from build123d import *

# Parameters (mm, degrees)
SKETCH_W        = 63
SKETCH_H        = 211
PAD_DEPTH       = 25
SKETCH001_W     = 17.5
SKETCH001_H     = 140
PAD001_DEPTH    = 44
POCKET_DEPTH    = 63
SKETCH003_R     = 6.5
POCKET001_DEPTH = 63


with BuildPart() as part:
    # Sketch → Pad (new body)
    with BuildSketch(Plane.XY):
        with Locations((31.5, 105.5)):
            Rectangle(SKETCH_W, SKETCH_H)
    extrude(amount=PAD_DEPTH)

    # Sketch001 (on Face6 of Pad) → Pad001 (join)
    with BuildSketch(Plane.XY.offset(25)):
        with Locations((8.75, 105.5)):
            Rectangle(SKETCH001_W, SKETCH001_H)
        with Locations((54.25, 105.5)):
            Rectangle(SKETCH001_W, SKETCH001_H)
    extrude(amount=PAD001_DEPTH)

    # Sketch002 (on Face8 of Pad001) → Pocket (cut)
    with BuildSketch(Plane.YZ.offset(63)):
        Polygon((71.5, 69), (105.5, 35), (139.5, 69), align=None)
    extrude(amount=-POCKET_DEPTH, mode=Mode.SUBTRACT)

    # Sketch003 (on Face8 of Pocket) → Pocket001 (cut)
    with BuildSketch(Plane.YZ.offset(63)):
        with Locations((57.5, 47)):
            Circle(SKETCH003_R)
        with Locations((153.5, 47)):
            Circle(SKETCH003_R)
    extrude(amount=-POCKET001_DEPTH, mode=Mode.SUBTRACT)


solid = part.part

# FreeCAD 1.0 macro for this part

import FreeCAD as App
import Part
import Sketcher

V = App.Vector
Q = App.Units.Quantity


def add_polygon(sketch, points):
    """Adds a closed chain of lines whose ends are joined by coincident constraints."""
    first, n = sketch.GeometryCount, len(points)
    for a, b in zip(points, points[1:] + points[:1]):
        sketch.addGeometry(Part.LineSegment(App.Vector(*a, 0), App.Vector(*b, 0)), False)
    for i in range(n):
        sketch.addConstraint(Sketcher.Constraint("Coincident", first + i, 2, first + (i + 1) % n, 1))

doc = App.newDocument("Part")
body = doc.addObject("PartDesign::Body", "Body")

# Sketch on XY plane
sketch1 = body.newObject("Sketcher::SketchObject", "Sketch")
sketch1.AttachmentSupport = (doc.getObject("XY_Plane"), [""])
sketch1.MapMode = "FlatFace"
add_polygon(sketch1, [(0, 211), (0, 0), (63, 0), (63, 211)])  # lines 0-3
sketch1.addConstraint([
    Sketcher.Constraint("Vertical", 0),
    Sketcher.Constraint("Horizontal", 1),
    Sketcher.Constraint("Vertical", 2),
    Sketcher.Constraint("Horizontal", 3),
    Sketcher.Constraint("Coincident", 0, 2, -1, 1),
    Sketcher.Constraint("DistanceX", 1, 1, 1, 2, Q("63 mm")),
    Sketcher.Constraint("DistanceY", 0, 2, 0, 1, Q("211 mm")),
])
pad1 = body.newObject("PartDesign::Pad", "Pad")
pad1.Profile = sketch1
pad1.Length = 25

# Sketch on XY plane
sketch2 = body.newObject("Sketcher::SketchObject", "Sketch001")
sketch2.AttachmentSupport = (doc.getObject("XY_Plane"), [""])
sketch2.MapMode = "FlatFace"
sketch2.AttachmentOffset = App.Placement(V(0, 0, 25), App.Rotation())
add_polygon(sketch2, [(0, 175.5), (0, 35.5), (17.5, 35.5), (17.5, 175.5)])  # lines 0-3
add_polygon(sketch2, [(45.5, 175.5), (45.5, 35.5), (63, 35.5), (63, 175.5)])  # lines 4-7
sketch2.addConstraint([
    Sketcher.Constraint("Vertical", 0),
    Sketcher.Constraint("Horizontal", 1),
    Sketcher.Constraint("Vertical", 2),
    Sketcher.Constraint("Horizontal", 3),
    Sketcher.Constraint("Vertical", 4),
    Sketcher.Constraint("Horizontal", 5),
    Sketcher.Constraint("Vertical", 6),
    Sketcher.Constraint("Horizontal", 7),
    Sketcher.Constraint("PointOnObject", 0, 2, -2),
    Sketcher.Constraint("Horizontal", 1, 2, 4, 2),
    Sketcher.Constraint("Horizontal", 3, 2, 6, 2),
    Sketcher.Constraint("Equal", 3, 5),
    Sketcher.Constraint("DistanceY", 0, 2, 0, 1, Q("140 mm")),
    Sketcher.Constraint("DistanceX", 1, 1, 1, 2, Q("17.5 mm")),
    Sketcher.Constraint("DistanceX", -1, 1, 5, 2, Q("63 mm")),
    Sketcher.Constraint("DistanceY", -1, 1, 0, 2, Q("35.5 mm")),
])
pad2 = body.newObject("PartDesign::Pad", "Pad001")
pad2.Profile = sketch2
pad2.Length = 44

# Sketch on YZ plane
sketch3 = body.newObject("Sketcher::SketchObject", "Sketch002")
sketch3.AttachmentSupport = (doc.getObject("YZ_Plane"), [""])
sketch3.MapMode = "FlatFace"
sketch3.AttachmentOffset = App.Placement(V(0, 0, 63), App.Rotation())
add_polygon(sketch3, [(71.5, 69), (105.5, 35), (139.5, 69)])  # lines 0-2
sketch3.addConstraint([
    Sketcher.Constraint("Horizontal", 2),
    Sketcher.Constraint("Perpendicular", 0, 1),
    Sketcher.Constraint("Equal", 0, 1),
    Sketcher.Constraint("DistanceX", 2, 2, 2, 1, Q("68 mm")),
    Sketcher.Constraint("DistanceY", -1, 1, 0, 2, Q("35 mm")),
    Sketcher.Constraint("DistanceX", -1, 1, 0, 2, Q("105.5 mm")),
])
pocket1 = body.newObject("PartDesign::Pocket", "Pocket")
pocket1.Profile = sketch3
pocket1.Length = 63

# Sketch on YZ plane
sketch4 = body.newObject("Sketcher::SketchObject", "Sketch003")
sketch4.AttachmentSupport = (doc.getObject("YZ_Plane"), [""])
sketch4.MapMode = "FlatFace"
sketch4.AttachmentOffset = App.Placement(V(0, 0, 63), App.Rotation())
sketch4.addGeometry([
    Part.Circle(V(57.5, 47, 0), V(0, 0, 1), 6.5),
    Part.Circle(V(153.5, 47, 0), V(0, 0, 1), 6.5),
], False)
sketch4.addConstraint([
    Sketcher.Constraint("Equal", 0, 1),
    Sketcher.Constraint("Horizontal", 0, 3, 1, 3),
    Sketcher.Constraint("Diameter", 0, Q("13 mm")),
    Sketcher.Constraint("DistanceY", -1, 1, 0, 3, Q("47 mm")),
    Sketcher.Constraint("DistanceX", 0, 3, 1, 3, Q("96 mm")),
    Sketcher.Constraint("DistanceX", -1, 1, 0, 3, Q("57.5 mm")),
])
pocket2 = body.newObject("PartDesign::Pocket", "Pocket001")
pocket2.Profile = sketch4
pocket2.Length = 63

doc.recompute()
